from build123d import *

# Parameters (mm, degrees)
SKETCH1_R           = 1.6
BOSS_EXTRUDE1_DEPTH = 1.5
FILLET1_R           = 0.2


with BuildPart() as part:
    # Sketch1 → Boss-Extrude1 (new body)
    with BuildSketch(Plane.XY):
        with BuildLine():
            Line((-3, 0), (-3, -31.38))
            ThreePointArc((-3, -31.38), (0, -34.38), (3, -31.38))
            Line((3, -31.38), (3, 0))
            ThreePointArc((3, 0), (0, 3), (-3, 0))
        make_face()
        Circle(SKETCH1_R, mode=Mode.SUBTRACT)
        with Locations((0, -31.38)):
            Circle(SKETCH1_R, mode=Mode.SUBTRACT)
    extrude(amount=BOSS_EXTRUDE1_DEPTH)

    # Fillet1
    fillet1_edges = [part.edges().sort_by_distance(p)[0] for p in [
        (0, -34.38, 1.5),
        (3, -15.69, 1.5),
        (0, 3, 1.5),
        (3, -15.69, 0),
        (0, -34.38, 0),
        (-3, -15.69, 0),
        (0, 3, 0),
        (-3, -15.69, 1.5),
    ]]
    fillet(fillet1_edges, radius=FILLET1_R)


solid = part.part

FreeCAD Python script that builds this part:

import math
import FreeCAD as App
import Part
import Sketcher
from FreeCAD import Vector


def edges_at(feature, points):
    """Names of the edges that pass closest to the given points."""
    edges = feature.Shape.Edges
    near = lambda p: min(range(len(edges)), key=lambda i: edges[i].distToShape(Part.Vertex(*p))[0])
    return sorted({f"Edge{near(p) + 1}" for p in points})

doc = App.newDocument("Part")
params = doc.addObject("Spreadsheet::Sheet", "Params")
for row, (alias, value) in enumerate([
    ("sketch1_radius", "3 mm"),
    ("sketch1_diameter", "3.2 mm"),
    ("sketch1_height", "31.38 mm"),
    ("pad1_length", "1.5 mm"),
    ("fillet_radius", "0.2 mm"),
], start=1):
    params.set(f"A{row}", alias)
    params.set(f"B{row}", "=" + value)
    params.setAlias(f"B{row}", alias)

body = doc.addObject("PartDesign::Body", "Body")

sketch1 = body.newObject("Sketcher::SketchObject", "Sketch")
sketch1.AttachmentSupport = (doc.getObject("XY_Plane"), [""])
sketch1.MapMode = "FlatFace"
sketch1.addGeometry([
    Part.LineSegment(Vector(-3, 0, 0), Vector(-3, -31.4, 0)),
    Part.ArcOfCircle(Part.Circle(Vector(0, -31.4, 0), Vector(0, 0, 1), 3), math.radians(180), math.radians(360)),
    Part.LineSegment(Vector(3, -31.4, 0), Vector(3, 0, 0)),
    Part.ArcOfCircle(Part.Circle(Vector(0, 0, 0), Vector(0, 0, 1), 3), math.radians(0), math.radians(180)),
    Part.Circle(Vector(0, -31.4, 0), Vector(0, 0, 1), 1.6),
    Part.Circle(Vector(0, 0, 0), Vector(0, 0, 1), 1.6),
], False)
sketch1.addConstraint([
    Sketcher.Constraint("Tangent", 0, 2, 1, 1),
    Sketcher.Constraint("Tangent", 1, 2, 2, 1),
    Sketcher.Constraint("Tangent", 2, 2, 3, 1),
    Sketcher.Constraint("Tangent", 3, 2, 0, 1),
    Sketcher.Constraint("Vertical", 0),
    Sketcher.Constraint("Vertical", 2),
    Sketcher.Constraint("Coincident", 3, 3, -1, 1),
    Sketcher.Constraint("Coincident", 5, 3, -1, 1),
    Sketcher.Constraint("Coincident", 4, 3, 1, 3),
    Sketcher.Constraint("Equal", 4, 5),
    Sketcher.Constraint("Radius", 1, 3.0),
    Sketcher.Constraint("Diameter", 4, 3.2),
    Sketcher.Constraint("DistanceY", 0, 2, 0, 1, 31.38),
])
sketch1.setExpression("Constraints[10]", "Params.sketch1_radius")
sketch1.setExpression("Constraints[11]", "Params.sketch1_diameter")
sketch1.setExpression("Constraints[12]", "Params.sketch1_height")
pad1 = body.newObject("PartDesign::Pad", "Pad")
pad1.Profile = sketch1
pad1.setExpression("Length", "Params.pad1_length")
doc.recompute()

fillet = body.newObject("PartDesign::Fillet", "Fillet")
fillet.Base = (pad1, edges_at(pad1, [
    (0, -34.38, 1.5),
    (3, -15.69, 1.5),
    (0, 3, 1.5),
    (3, -15.69, 0),
    (0, -34.38, 0),
    (-3, -15.69, 0),
    (0, 3, 0),
    (-3, -15.69, 1.5),
]))
fillet.setExpression("Radius", "Params.fillet_radius")

doc.recompute()
